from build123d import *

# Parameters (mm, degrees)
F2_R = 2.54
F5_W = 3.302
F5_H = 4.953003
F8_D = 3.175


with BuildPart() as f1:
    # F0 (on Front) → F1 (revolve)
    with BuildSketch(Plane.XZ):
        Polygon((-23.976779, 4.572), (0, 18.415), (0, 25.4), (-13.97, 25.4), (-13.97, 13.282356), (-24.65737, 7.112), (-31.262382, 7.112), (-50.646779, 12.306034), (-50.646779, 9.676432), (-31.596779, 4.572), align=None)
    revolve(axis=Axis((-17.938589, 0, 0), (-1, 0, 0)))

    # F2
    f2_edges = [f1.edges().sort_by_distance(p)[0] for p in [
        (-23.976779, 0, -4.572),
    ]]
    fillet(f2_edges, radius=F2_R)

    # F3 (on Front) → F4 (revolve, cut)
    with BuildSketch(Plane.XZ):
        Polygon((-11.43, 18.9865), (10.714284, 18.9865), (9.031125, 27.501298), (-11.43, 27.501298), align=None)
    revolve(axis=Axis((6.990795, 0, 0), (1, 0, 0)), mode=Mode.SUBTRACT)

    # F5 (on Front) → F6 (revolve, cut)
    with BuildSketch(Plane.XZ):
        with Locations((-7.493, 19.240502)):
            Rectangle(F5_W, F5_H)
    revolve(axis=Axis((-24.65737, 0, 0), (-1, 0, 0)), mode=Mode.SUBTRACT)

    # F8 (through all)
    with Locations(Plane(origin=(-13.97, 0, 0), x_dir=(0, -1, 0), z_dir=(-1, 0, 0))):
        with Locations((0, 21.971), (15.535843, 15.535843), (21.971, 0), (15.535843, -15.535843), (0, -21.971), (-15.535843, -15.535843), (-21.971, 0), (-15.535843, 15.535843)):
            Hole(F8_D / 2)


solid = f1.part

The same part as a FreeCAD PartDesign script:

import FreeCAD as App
import Part
import Sketcher
Q = App.Units.Quantity


def edges_at(feature, points):
    """Names of the edges that pass closest to the given points."""
    edges = feature.Shape.Edges
    near = lambda p: min(range(len(edges)), key=lambda i: edges[i].distToShape(Part.Vertex(*p))[0])
    return sorted({f"Edge{near(p) + 1}" for p in points})


def add_polygon(sketch, points):
    """Adds a closed chain of lines whose ends are joined by coincident constraints."""
    first, n = sketch.GeometryCount, len(points)
    for a, b in zip(points, points[1:] + points[:1]):
        sketch.addGeometry(Part.LineSegment(App.Vector(*a, 0), App.Vector(*b, 0)), False)
    for i in range(n):
        sketch.addConstraint(Sketcher.Constraint("Coincident", first + i, 2, first + (i + 1) % n, 1))

doc = App.newDocument("Part")
params = doc.addObject("Spreadsheet::Sheet", "Params")
for row, (alias, value) in enumerate([
    ("sketch1_width", "0.3 in"),
    ("sketch1_width2", "0.55 in"),
    ("sketch1_length", "1.09 in"),
    ("sketch1_height", "0.275 in"),
    ("revolution_angle", "360 deg"),
    ("fillet_radius", "0.1 in"),
    ("groove_angle", "360 deg"),
    ("sketch3_width", "0.13 in"),
    ("sketch3_height", "0.1950001 in"),
    ("groove2_angle", "360 deg"),
    ("sketch4_diameter", "0.125 in"),
    ("hole_diameter", "0.125 in"),
], start=1):
    params.set(f"A{row}", alias)
    params.set(f"B{row}", "=" + value)
    params.setAlias(f"B{row}", alias)

body = doc.addObject("PartDesign::Body", "Body")

sketch1 = body.newObject("Sketcher::SketchObject", "Sketch")
sketch1.AttachmentSupport = (doc.getObject("XZ_Plane"), [""])
sketch1.MapMode = "FlatFace"
add_polygon(sketch1, [(-23.976779, 4.572), (0, 18.415), (0, 25.4), (-13.97, 25.4), (-13.97, 13.282356), (-24.65737, 7.112), (-31.262382, 7.112), (-50.646779, 12.306034), (-50.646779, 9.676432), (-31.596779, 4.572)])
sketch1.addConstraint([
    Sketcher.Constraint("Vertical", 1),
    Sketcher.Constraint("Horizontal", 2),
    Sketcher.Constraint("Vertical", 3),
    Sketcher.Constraint("Horizontal", 5),
    Sketcher.Constraint("Vertical", 7),
    Sketcher.Constraint("Horizontal", 9),
    Sketcher.Constraint("PointOnObject", 0, 2, -2),
    Sketcher.Constraint("Parallel", 0, 4),
    Sketcher.Constraint("Parallel", 6, 8),
    Sketcher.Constraint("DistanceX", 9, 1, 9, 2, Q("0.3 in")),
    Sketcher.Constraint("DistanceY", -1, 1, 1, 2, Q("1 in")),
    Sketcher.Constraint("Angle", 0, Q("30 deg")),
    Sketcher.Constraint("Angle", 6, Q("164.999999 deg")),
    Sketcher.Constraint("DistanceX", 2, 2, 2, 1, Q("0.55 in")),
    Sketcher.Constraint("DistanceY", 8, 2, 5, 2, Q("0.1 in")),
    Sketcher.Constraint("Distance", 0, Q("1.09 in")),
    Sketcher.Constraint("DistanceY", 1, 1, 1, 2, Q("0.275 in")),
    Sketcher.Constraint("DistanceX", 7, 2, 8, 2, Q("0.75 in")),
    Sketcher.Constraint("DistanceX", 5, 2, 5, 1, Q("6.605012 mm")),
    Sketcher.Constraint("Distance", 4, Q("12.340712 mm")),
])
sketch1.setExpression("Constraints[19]", "Params.sketch1_width")
sketch1.setExpression("Constraints[23]", "Params.sketch1_width2")
sketch1.setExpression("Constraints[25]", "Params.sketch1_length")
sketch1.setExpression("Constraints[26]", "Params.sketch1_height")
revolution = body.newObject("PartDesign::Revolution", "Revolution")
revolution.Profile = sketch1
revolution.ReferenceAxis = (sketch1, ["H_Axis"])
revolution.setExpression("Angle", "Params.revolution_angle")
doc.recompute()

fillet = body.newObject("PartDesign::Fillet", "Fillet")
fillet.Base = (revolution, edges_at(revolution, [(-23.977, 0, -4.572)]))
fillet.setExpression("Radius", "Params.fillet_radius")

sketch2 = body.newObject("Sketcher::SketchObject", "Sketch001")
sketch2.AttachmentSupport = (doc.getObject("XZ_Plane"), [""])
sketch2.MapMode = "FlatFace"
add_polygon(sketch2, [(-11.43, 18.9865), (10.714284, 18.9865), (9.031125, 27.501298), (-11.43, 27.501298)])
sketch2.addConstraint([
    Sketcher.Constraint("Horizontal", 0),
    Sketcher.Constraint("Horizontal", 2),
    Sketcher.Constraint("Vertical", 3),
    Sketcher.Constraint("DistanceX", 2, 2, -1, 1, Q("0.45 in")),
    Sketcher.Constraint("DistanceY", -1, 1, 0, 2, Q("0.7475 in")),
    Sketcher.Constraint("DistanceX", 0, 1, 0, 2, Q("22.144284 mm")),
    Sketcher.Constraint("DistanceX", 2, 2, 2, 1, Q("20.461125 mm")),
    Sketcher.Constraint("DistanceY", 3, 2, 3, 1, Q("8.514798 mm")),
])
groove = body.newObject("PartDesign::Groove", "Groove")
groove.Profile = sketch2
groove.ReferenceAxis = (sketch2, ["H_Axis"])
groove.setExpression("Angle", "Params.groove_angle")

sketch3 = body.newObject("Sketcher::SketchObject", "Sketch002")
sketch3.AttachmentSupport = (doc.getObject("XZ_Plane"), [""])
sketch3.MapMode = "FlatFace"
add_polygon(sketch3, [(-9.144, 21.717004), (-9.144, 16.764001), (-5.842, 16.764001), (-5.842, 21.717004)])
sketch3.addConstraint([
    Sketcher.Constraint("Vertical", 0),
    Sketcher.Constraint("Horizontal", 1),
    Sketcher.Constraint("Vertical", 2),
    Sketcher.Constraint("Horizontal", 3),
    Sketcher.Constraint("DistanceX", 1, 1, 1, 2, Q("0.13 in")),
    Sketcher.Constraint("DistanceY", 0, 2, 0, 1, Q("0.1950001 in")),
    Sketcher.Constraint("DistanceX", 0, 2, -1, 1, Q("0.36 in")),
    Sketcher.Constraint("DistanceY", -1, 1, 0, 2, Q("0.66 in")),
])
sketch3.setExpression("Constraints[8]", "Params.sketch3_width")
sketch3.setExpression("Constraints[9]", "Params.sketch3_height")
groove2 = body.newObject("PartDesign::Groove", "Groove001")
groove2.Profile = sketch3
groove2.ReferenceAxis = (sketch3, ["H_Axis"])
groove2.setExpression("Angle", "Params.groove2_angle")

sketch4 = body.newObject("Sketcher::SketchObject", "Sketch003")
sketch4.AttachmentSupport = (doc.getObject("YZ_Plane"), [""])
sketch4.MapMode = "FlatFace"
sketch4.AttachmentOffset = App.Placement(App.Vector(0, 0, -0.55 * 25.4), App.Rotation())
sketch4.addGeometry([
    Part.Circle(App.Vector(0, 21.971, 0), App.Vector(0, 0, 1), 1.5875),
    Part.Circle(App.Vector(-15.535843, 15.535843, 0), App.Vector(0, 0, 1), 1.5875),
    Part.Circle(App.Vector(-21.971, 0, 0), App.Vector(0, 0, 1), 1.5875),
    Part.Circle(App.Vector(-15.535843, -15.535843, 0), App.Vector(0, 0, 1), 1.5875),
    Part.Circle(App.Vector(0, -21.971, 0), App.Vector(0, 0, 1), 1.5875),
    Part.Circle(App.Vector(15.535843, -15.535843, 0), App.Vector(0, 0, 1), 1.5875),
    Part.Circle(App.Vector(21.971, 0, 0), App.Vector(0, 0, 1), 1.5875),
    Part.Circle(App.Vector(15.535843, 15.535843, 0), App.Vector(0, 0, 1), 1.5875),
], False)
sketch4.addConstraint([
    Sketcher.Constraint("Equal", 0, 1),
    Sketcher.Constraint("Equal", 1, 2),
    Sketcher.Constraint("Equal", 2, 3),
    Sketcher.Constraint("Equal", 3, 4),
    Sketcher.Constraint("Equal", 4, 5),
    Sketcher.Constraint("Equal", 5, 6),
    Sketcher.Constraint("Equal", 6, 7),
    Sketcher.Constraint("Symmetric", 0, 3, 4, 3, -1, 1),
    Sketcher.Constraint("Symmetric", 1, 3, 5, 3, -1, 1),
    Sketcher.Constraint("Symmetric", 2, 3, 6, 3, -1, 1),
    Sketcher.Constraint("Symmetric", 3, 3, 7, 3, -1, 1),
    Sketcher.Constraint("Symmetric", 3, 3, 5, 3, -2),
    Sketcher.Constraint("PointOnObject", 0, 3, -2),
    Sketcher.Constraint("PointOnObject", 2, 3, -1),
    Sketcher.Constraint("Diameter", 0, Q("0.125 in")),
    Sketcher.Constraint("DistanceY", 4, 3, 0, 3, Q("1.73 in")),
    Sketcher.Constraint("DistanceX", 2, 3, -1, 1, Q("0.865 in")),
    Sketcher.Constraint("DistanceX", 1, 3, -1, 1, Q("15.535843 mm")),
    Sketcher.Constraint("DistanceY", -1, 1, 1, 3, Q("15.535843 mm")),
])
sketch4.setExpression("Constraints[14]", "Params.sketch4_diameter")
doc.recompute()
hole = body.newObject("PartDesign::Hole", "Hole")
hole.Profile = sketch4
hole.ThreadType = "None"
hole.setExpression("Diameter", "Params.hole_diameter")
hole.DepthType = "ThroughAll"
hole.Reversed = True

doc.recompute()
